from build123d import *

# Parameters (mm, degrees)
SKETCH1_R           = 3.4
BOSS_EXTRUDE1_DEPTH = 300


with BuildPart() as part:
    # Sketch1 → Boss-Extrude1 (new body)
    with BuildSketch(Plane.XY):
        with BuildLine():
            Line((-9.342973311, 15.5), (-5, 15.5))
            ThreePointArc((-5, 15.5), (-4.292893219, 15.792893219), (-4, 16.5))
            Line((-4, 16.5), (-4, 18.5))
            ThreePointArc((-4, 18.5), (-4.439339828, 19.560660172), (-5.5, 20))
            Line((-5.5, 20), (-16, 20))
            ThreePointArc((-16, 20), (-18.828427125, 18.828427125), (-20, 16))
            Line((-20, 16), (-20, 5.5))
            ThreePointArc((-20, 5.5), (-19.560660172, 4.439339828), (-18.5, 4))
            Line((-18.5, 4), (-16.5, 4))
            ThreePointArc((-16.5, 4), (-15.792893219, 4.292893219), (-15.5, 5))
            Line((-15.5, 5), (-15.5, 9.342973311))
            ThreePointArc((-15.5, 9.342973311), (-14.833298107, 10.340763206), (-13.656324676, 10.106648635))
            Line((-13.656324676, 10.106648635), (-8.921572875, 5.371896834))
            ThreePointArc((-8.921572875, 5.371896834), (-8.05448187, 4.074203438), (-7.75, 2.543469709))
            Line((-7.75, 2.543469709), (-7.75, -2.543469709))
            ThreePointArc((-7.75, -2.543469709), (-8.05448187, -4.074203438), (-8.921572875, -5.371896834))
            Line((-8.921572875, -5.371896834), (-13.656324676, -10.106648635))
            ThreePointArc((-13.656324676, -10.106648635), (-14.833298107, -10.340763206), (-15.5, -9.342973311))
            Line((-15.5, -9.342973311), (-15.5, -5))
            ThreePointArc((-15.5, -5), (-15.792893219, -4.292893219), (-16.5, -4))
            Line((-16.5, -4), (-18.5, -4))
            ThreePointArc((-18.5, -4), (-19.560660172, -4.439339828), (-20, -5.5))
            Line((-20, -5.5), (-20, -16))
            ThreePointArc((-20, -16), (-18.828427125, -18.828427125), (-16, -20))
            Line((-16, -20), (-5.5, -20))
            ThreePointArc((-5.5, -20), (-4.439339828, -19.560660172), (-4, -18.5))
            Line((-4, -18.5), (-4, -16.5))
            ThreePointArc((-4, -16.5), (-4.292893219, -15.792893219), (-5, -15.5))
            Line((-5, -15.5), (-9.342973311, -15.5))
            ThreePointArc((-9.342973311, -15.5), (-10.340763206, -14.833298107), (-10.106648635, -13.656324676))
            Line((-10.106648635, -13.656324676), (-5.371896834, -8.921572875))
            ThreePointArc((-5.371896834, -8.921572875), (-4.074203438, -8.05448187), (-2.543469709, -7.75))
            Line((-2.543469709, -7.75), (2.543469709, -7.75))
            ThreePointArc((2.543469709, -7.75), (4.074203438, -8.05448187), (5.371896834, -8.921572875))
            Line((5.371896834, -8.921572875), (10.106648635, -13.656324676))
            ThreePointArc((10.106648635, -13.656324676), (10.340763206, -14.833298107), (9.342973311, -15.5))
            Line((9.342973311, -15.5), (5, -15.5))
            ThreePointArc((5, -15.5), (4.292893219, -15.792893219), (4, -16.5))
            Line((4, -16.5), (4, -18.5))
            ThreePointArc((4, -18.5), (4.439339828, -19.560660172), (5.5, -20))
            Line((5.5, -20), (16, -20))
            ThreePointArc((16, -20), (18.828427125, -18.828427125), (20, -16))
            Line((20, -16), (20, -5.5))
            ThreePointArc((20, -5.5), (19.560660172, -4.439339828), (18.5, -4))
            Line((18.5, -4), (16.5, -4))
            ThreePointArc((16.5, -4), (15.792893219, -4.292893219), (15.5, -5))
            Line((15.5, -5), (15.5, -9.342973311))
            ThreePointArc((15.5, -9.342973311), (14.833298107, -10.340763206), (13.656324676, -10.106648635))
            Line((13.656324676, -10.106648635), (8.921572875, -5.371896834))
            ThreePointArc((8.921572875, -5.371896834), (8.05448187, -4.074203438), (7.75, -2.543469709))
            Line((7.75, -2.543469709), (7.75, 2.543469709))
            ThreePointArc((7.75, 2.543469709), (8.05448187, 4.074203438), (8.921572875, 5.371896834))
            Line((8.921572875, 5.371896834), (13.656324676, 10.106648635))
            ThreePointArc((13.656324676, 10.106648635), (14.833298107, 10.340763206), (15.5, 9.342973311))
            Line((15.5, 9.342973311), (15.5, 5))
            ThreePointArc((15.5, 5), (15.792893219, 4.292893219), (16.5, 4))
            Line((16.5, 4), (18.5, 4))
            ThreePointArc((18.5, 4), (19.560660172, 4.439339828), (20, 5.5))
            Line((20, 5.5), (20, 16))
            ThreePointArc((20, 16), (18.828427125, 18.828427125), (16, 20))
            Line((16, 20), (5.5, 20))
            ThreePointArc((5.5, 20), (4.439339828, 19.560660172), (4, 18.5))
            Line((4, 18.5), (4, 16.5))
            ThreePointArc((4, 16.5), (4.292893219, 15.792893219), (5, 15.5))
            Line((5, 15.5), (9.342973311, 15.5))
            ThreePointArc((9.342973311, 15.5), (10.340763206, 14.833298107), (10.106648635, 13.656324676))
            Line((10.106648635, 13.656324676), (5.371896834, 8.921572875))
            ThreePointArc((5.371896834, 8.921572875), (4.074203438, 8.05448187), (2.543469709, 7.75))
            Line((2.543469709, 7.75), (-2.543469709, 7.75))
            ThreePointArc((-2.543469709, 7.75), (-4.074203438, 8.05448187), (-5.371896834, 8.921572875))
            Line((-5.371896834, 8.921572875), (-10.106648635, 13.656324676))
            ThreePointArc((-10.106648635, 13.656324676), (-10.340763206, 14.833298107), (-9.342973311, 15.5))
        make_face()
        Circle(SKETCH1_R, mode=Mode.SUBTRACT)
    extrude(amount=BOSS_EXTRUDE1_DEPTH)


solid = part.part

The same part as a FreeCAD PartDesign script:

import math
import FreeCAD as App
import Part
import Sketcher
from FreeCAD import Vector
Q = App.Units.Quantity

doc = App.newDocument("Part")
body = doc.addObject("PartDesign::Body", "Body")

# Sketch on XY plane
sketch1 = doc.addObject("Sketcher::SketchObject", "Sketch")
body.addObject(sketch1)
sketch1.AttachmentSupport = (doc.XY_Plane, [""])
sketch1.MapMode = "FlatFace"
sketch1.addGeometry([
    Part.LineSegment(Vector(-9.3, 15.5, 0), Vector(-5, 15.5, 0)),  # 0
    Part.ArcOfCircle(Part.Circle(Vector(-5, 16.5, 0), Vector(0, 0, 1), 1), math.radians(-90), math.radians(0)),  # 1
    Part.LineSegment(Vector(-4, 16.5, 0), Vector(-4, 18.5, 0)),  # 2
    Part.ArcOfCircle(Part.Circle(Vector(-5.5, 18.5, 0), Vector(0, 0, 1), 1.5), math.radians(0), math.radians(90)),  # 3
    Part.LineSegment(Vector(-5.5, 20, 0), Vector(-16, 20, 0)),  # 4
    Part.ArcOfCircle(Part.Circle(Vector(-16, 16, 0), Vector(0, 0, 1), 4), math.radians(90), math.radians(180)),  # 5
    Part.LineSegment(Vector(-20, 16, 0), Vector(-20, 5.5, 0)),  # 6
    Part.ArcOfCircle(Part.Circle(Vector(-18.5, 5.5, 0), Vector(0, 0, 1), 1.5), math.radians(180), math.radians(270)),  # 7
    Part.LineSegment(Vector(-18.5, 4, 0), Vector(-16.5, 4, 0)),  # 8
    Part.ArcOfCircle(Part.Circle(Vector(-16.5, 5, 0), Vector(0, 0, 1), 1), math.radians(-90), math.radians(0)),  # 9
    Part.LineSegment(Vector(-15.5, 5, 0), Vector(-15.5, 9.3, 0)),  # 10
    Part.ArcOfCircle(Part.Circle(Vector(-14.4, 9.3, 0), Vector(0, 0, 1), 1.1), math.radians(45), math.radians(180)),  # 11
    Part.LineSegment(Vector(-13.7, 10.1, 0), Vector(-8.9, 5.4, 0)),  # 12
    Part.ArcOfCircle(Part.Circle(Vector(-11.8, 2.5, 0), Vector(0, 0, 1), 4), math.radians(0), math.radians(45)),  # 13
    Part.LineSegment(Vector(-7.8, 2.5, 0), Vector(-7.8, -2.5, 0)),  # 14
    Part.ArcOfCircle(Part.Circle(Vector(-11.8, -2.5, 0), Vector(0, 0, 1), 4), math.radians(-45), math.radians(0)),  # 15
    Part.LineSegment(Vector(-8.9, -5.4, 0), Vector(-13.7, -10.1, 0)),  # 16
    Part.ArcOfCircle(Part.Circle(Vector(-14.4, -9.3, 0), Vector(0, 0, 1), 1.1), math.radians(180), math.radians(315)),  # 17
    Part.LineSegment(Vector(-15.5, -9.3, 0), Vector(-15.5, -5, 0)),  # 18
    Part.ArcOfCircle(Part.Circle(Vector(-16.5, -5, 0), Vector(0, 0, 1), 1), math.radians(0), math.radians(90)),  # 19
    Part.LineSegment(Vector(-16.5, -4, 0), Vector(-18.5, -4, 0)),  # 20
    Part.ArcOfCircle(Part.Circle(Vector(-18.5, -5.5, 0), Vector(0, 0, 1), 1.5), math.radians(90), math.radians(180)),  # 21
    Part.LineSegment(Vector(-20, -5.5, 0), Vector(-20, -16, 0)),  # 22
    Part.ArcOfCircle(Part.Circle(Vector(-16, -16, 0), Vector(0, 0, 1), 4), math.radians(180), math.radians(270)),  # 23
    Part.LineSegment(Vector(-16, -20, 0), Vector(-5.5, -20, 0)),  # 24
    Part.ArcOfCircle(Part.Circle(Vector(-5.5, -18.5, 0), Vector(0, 0, 1), 1.5), math.radians(-90), math.radians(0)),  # 25
    Part.LineSegment(Vector(-4, -18.5, 0), Vector(-4, -16.5, 0)),  # 26
    Part.ArcOfCircle(Part.Circle(Vector(-5, -16.5, 0), Vector(0, 0, 1), 1), math.radians(0), math.radians(90)),  # 27
    Part.LineSegment(Vector(-5, -15.5, 0), Vector(-9.3, -15.5, 0)),  # 28
    Part.ArcOfCircle(Part.Circle(Vector(-9.3, -14.4, 0), Vector(0, 0, 1), 1.1), math.radians(135), math.radians(270)),  # 29
    Part.LineSegment(Vector(-10.1, -13.7, 0), Vector(-5.4, -8.9, 0)),  # 30
    Part.ArcOfCircle(Part.Circle(Vector(-2.5, -11.8, 0), Vector(0, 0, 1), 4), math.radians(90), math.radians(135)),  # 31
    Part.LineSegment(Vector(-2.5, -7.8, 0), Vector(2.5, -7.8, 0)),  # 32
    Part.ArcOfCircle(Part.Circle(Vector(2.5, -11.8, 0), Vector(0, 0, 1), 4), math.radians(45), math.radians(90)),  # 33
    Part.LineSegment(Vector(5.4, -8.9, 0), Vector(10.1, -13.7, 0)),  # 34
    Part.ArcOfCircle(Part.Circle(Vector(9.3, -14.4, 0), Vector(0, 0, 1), 1.1), math.radians(-90), math.radians(45)),  # 35
    Part.LineSegment(Vector(9.3, -15.5, 0), Vector(5, -15.5, 0)),  # 36
    Part.ArcOfCircle(Part.Circle(Vector(5, -16.5, 0), Vector(0, 0, 1), 1), math.radians(90), math.radians(180)),  # 37
    Part.LineSegment(Vector(4, -16.5, 0), Vector(4, -18.5, 0)),  # 38
    Part.ArcOfCircle(Part.Circle(Vector(5.5, -18.5, 0), Vector(0, 0, 1), 1.5), math.radians(180), math.radians(270)),  # 39
    Part.LineSegment(Vector(5.5, -20, 0), Vector(16, -20, 0)),  # 40
    Part.ArcOfCircle(Part.Circle(Vector(16, -16, 0), Vector(0, 0, 1), 4), math.radians(-90), math.radians(0)),  # 41
    Part.LineSegment(Vector(20, -16, 0), Vector(20, -5.5, 0)),  # 42
    Part.ArcOfCircle(Part.Circle(Vector(18.5, -5.5, 0), Vector(0, 0, 1), 1.5), math.radians(0), math.radians(90)),  # 43
    Part.LineSegment(Vector(18.5, -4, 0), Vector(16.5, -4, 0)),  # 44
    Part.ArcOfCircle(Part.Circle(Vector(16.5, -5, 0), Vector(0, 0, 1), 1), math.radians(90), math.radians(180)),  # 45
    Part.LineSegment(Vector(15.5, -5, 0), Vector(15.5, -9.3, 0)),  # 46
    Part.ArcOfCircle(Part.Circle(Vector(14.4, -9.3, 0), Vector(0, 0, 1), 1.1), math.radians(-135), math.radians(0)),  # 47
    Part.LineSegment(Vector(13.7, -10.1, 0), Vector(8.9, -5.4, 0)),  # 48
    Part.ArcOfCircle(Part.Circle(Vector(11.8, -2.5, 0), Vector(0, 0, 1), 4), math.radians(-180), math.radians(-135)),  # 49
    Part.LineSegment(Vector(7.8, -2.5, 0), Vector(7.8, 2.5, 0)),  # 50
    Part.ArcOfCircle(Part.Circle(Vector(11.8, 2.5, 0), Vector(0, 0, 1), 4), math.radians(135), math.radians(180)),  # 51
    Part.LineSegment(Vector(8.9, 5.4, 0), Vector(13.7, 10.1, 0)),  # 52
    Part.ArcOfCircle(Part.Circle(Vector(14.4, 9.3, 0), Vector(0, 0, 1), 1.1), math.radians(0), math.radians(135)),  # 53
    Part.LineSegment(Vector(15.5, 9.3, 0), Vector(15.5, 5, 0)),  # 54
    Part.ArcOfCircle(Part.Circle(Vector(16.5, 5, 0), Vector(0, 0, 1), 1), math.radians(-180), math.radians(-90)),  # 55
    Part.LineSegment(Vector(16.5, 4, 0), Vector(18.5, 4, 0)),  # 56
    Part.ArcOfCircle(Part.Circle(Vector(18.5, 5.5, 0), Vector(0, 0, 1), 1.5), math.radians(-90), math.radians(0)),  # 57
    Part.LineSegment(Vector(20, 5.5, 0), Vector(20, 16, 0)),  # 58
    Part.ArcOfCircle(Part.Circle(Vector(16, 16, 0), Vector(0, 0, 1), 4), math.radians(0), math.radians(90)),  # 59
    Part.LineSegment(Vector(16, 20, 0), Vector(5.5, 20, 0)),  # 60
    Part.ArcOfCircle(Part.Circle(Vector(5.5, 18.5, 0), Vector(0, 0, 1), 1.5), math.radians(90), math.radians(180)),  # 61
    Part.LineSegment(Vector(4, 18.5, 0), Vector(4, 16.5, 0)),  # 62
    Part.ArcOfCircle(Part.Circle(Vector(5, 16.5, 0), Vector(0, 0, 1), 1), math.radians(-180), math.radians(-90)),  # 63
    Part.LineSegment(Vector(5, 15.5, 0), Vector(9.3, 15.5, 0)),  # 64
    Part.ArcOfCircle(Part.Circle(Vector(9.3, 14.4, 0), Vector(0, 0, 1), 1.1), math.radians(-45), math.radians(90)),  # 65
    Part.LineSegment(Vector(10.1, 13.7, 0), Vector(5.4, 8.9, 0)),  # 66
    Part.ArcOfCircle(Part.Circle(Vector(2.5, 11.8, 0), Vector(0, 0, 1), 4), math.radians(-90), math.radians(-45)),  # 67
    Part.LineSegment(Vector(2.5, 7.8, 0), Vector(-2.5, 7.8, 0)),  # 68
    Part.ArcOfCircle(Part.Circle(Vector(-2.5, 11.8, 0), Vector(0, 0, 1), 4), math.radians(-135), math.radians(-90)),  # 69
    Part.LineSegment(Vector(-5.4, 8.9, 0), Vector(-10.1, 13.7, 0)),  # 70
    Part.ArcOfCircle(Part.Circle(Vector(-9.3, 14.4, 0), Vector(0, 0, 1), 1.1), math.radians(90), math.radians(225)),  # 71
    Part.Circle(Vector(0, 0, 0), Vector(0, 0, 1), 3.4),  # 72
], False)
sketch1.addConstraint([
    Sketcher.Constraint("Tangent", 0, 2, 1, 1),
    Sketcher.Constraint("Tangent", 1, 2, 2, 1),
    Sketcher.Constraint("Tangent", 2, 2, 3, 1),
    Sketcher.Constraint("Tangent", 3, 2, 4, 1),
    Sketcher.Constraint("Tangent", 4, 2, 5, 1),
    Sketcher.Constraint("Tangent", 5, 2, 6, 1),
    Sketcher.Constraint("Tangent", 6, 2, 7, 1),
    Sketcher.Constraint("Tangent", 7, 2, 8, 1),
    Sketcher.Constraint("Tangent", 8, 2, 9, 1),
    Sketcher.Constraint("Tangent", 9, 2, 10, 1),
    Sketcher.Constraint("Tangent", 10, 2, 11, 2),
    Sketcher.Constraint("Tangent", 11, 1, 12, 1),
    Sketcher.Constraint("Tangent", 12, 2, 13, 2),
    Sketcher.Constraint("Tangent", 13, 1, 14, 1),
    Sketcher.Constraint("Tangent", 14, 2, 15, 2),
    Sketcher.Constraint("Tangent", 15, 1, 16, 1),
    Sketcher.Constraint("Tangent", 16, 2, 17, 2),
    Sketcher.Constraint("Tangent", 17, 1, 18, 1),
    Sketcher.Constraint("Tangent", 18, 2, 19, 1),
    Sketcher.Constraint("Tangent", 19, 2, 20, 1),
    Sketcher.Constraint("Tangent", 20, 2, 21, 1),
    Sketcher.Constraint("Tangent", 21, 2, 22, 1),
    Sketcher.Constraint("Tangent", 22, 2, 23, 1),
    Sketcher.Constraint("Tangent", 23, 2, 24, 1),
    Sketcher.Constraint("Tangent", 24, 2, 25, 1),
    Sketcher.Constraint("Tangent", 25, 2, 26, 1),
    Sketcher.Constraint("Tangent", 26, 2, 27, 1),
    Sketcher.Constraint("Tangent", 27, 2, 28, 1),
    Sketcher.Constraint("Tangent", 28, 2, 29, 2),
    Sketcher.Constraint("Tangent", 29, 1, 30, 1),
    Sketcher.Constraint("Tangent", 30, 2, 31, 2),
    Sketcher.Constraint("Tangent", 31, 1, 32, 1),
    Sketcher.Constraint("Tangent", 32, 2, 33, 2),
    Sketcher.Constraint("Tangent", 33, 1, 34, 1),
    Sketcher.Constraint("Tangent", 34, 2, 35, 2),
    Sketcher.Constraint("Tangent", 35, 1, 36, 1),
    Sketcher.Constraint("Tangent", 36, 2, 37, 1),
    Sketcher.Constraint("Tangent", 37, 2, 38, 1),
    Sketcher.Constraint("Tangent", 38, 2, 39, 1),
    Sketcher.Constraint("Tangent", 39, 2, 40, 1),
    Sketcher.Constraint("Tangent", 40, 2, 41, 1),
    Sketcher.Constraint("Tangent", 41, 2, 42, 1),
    Sketcher.Constraint("Tangent", 42, 2, 43, 1),
    Sketcher.Constraint("Tangent", 43, 2, 44, 1),
    Sketcher.Constraint("Tangent", 44, 2, 45, 1),
    Sketcher.Constraint("Tangent", 45, 2, 46, 1),
    Sketcher.Constraint("Tangent", 46, 2, 47, 2),
    Sketcher.Constraint("Tangent", 47, 1, 48, 1),
    Sketcher.Constraint("Tangent", 48, 2, 49, 2),
    Sketcher.Constraint("Tangent", 49, 1, 50, 1),
    Sketcher.Constraint("Tangent", 50, 2, 51, 2),
    Sketcher.Constraint("Tangent", 51, 1, 52, 1),
    Sketcher.Constraint("Tangent", 52, 2, 53, 2),
    Sketcher.Constraint("Tangent", 53, 1, 54, 1),
    Sketcher.Constraint("Tangent", 54, 2, 55, 1),
    Sketcher.Constraint("Tangent", 55, 2, 56, 1),
    Sketcher.Constraint("Tangent", 56, 2, 57, 1),
    Sketcher.Constraint("Tangent", 57, 2, 58, 1),
    Sketcher.Constraint("Tangent", 58, 2, 59, 1),
    Sketcher.Constraint("Tangent", 59, 2, 60, 1),
    Sketcher.Constraint("Tangent", 60, 2, 61, 1),
    Sketcher.Constraint("Tangent", 61, 2, 62, 1),
    Sketcher.Constraint("Tangent", 62, 2, 63, 1),
    Sketcher.Constraint("Tangent", 63, 2, 64, 1),
    Sketcher.Constraint("Tangent", 64, 2, 65, 2),
    Sketcher.Constraint("Tangent", 65, 1, 66, 1),
    Sketcher.Constraint("Tangent", 66, 2, 67, 2),
    Sketcher.Constraint("Tangent", 67, 1, 68, 1),
    Sketcher.Constraint("Tangent", 68, 2, 69, 2),
    Sketcher.Constraint("Tangent", 69, 1, 70, 1),
    Sketcher.Constraint("Tangent", 70, 2, 71, 2),
    Sketcher.Constraint("Tangent", 71, 1, 0, 1),
    Sketcher.Constraint("Horizontal", 0),
    Sketcher.Constraint("Vertical", 2),
    Sketcher.Constraint("Horizontal", 4),
    Sketcher.Constraint("Vertical", 6),
    Sketcher.Constraint("Horizontal", 8),
    Sketcher.Constraint("Vertical", 10),
    Sketcher.Constraint("Vertical", 14),
    Sketcher.Constraint("Vertical", 18),
    Sketcher.Constraint("Horizontal", 20),
    Sketcher.Constraint("Vertical", 22),
    Sketcher.Constraint("Horizontal", 24),
    Sketcher.Constraint("Vertical", 26),
    Sketcher.Constraint("Horizontal", 28),
    Sketcher.Constraint("Horizontal", 32),
    Sketcher.Constraint("Horizontal", 36),
    Sketcher.Constraint("Vertical", 38),
    Sketcher.Constraint("Horizontal", 40),
    Sketcher.Constraint("Vertical", 42),
    Sketcher.Constraint("Horizontal", 44),
    Sketcher.Constraint("Vertical", 46),
    Sketcher.Constraint("Vertical", 50),
    Sketcher.Constraint("Vertical", 54),
    Sketcher.Constraint("Horizontal", 56),
    Sketcher.Constraint("Vertical", 58),
    Sketcher.Constraint("Horizontal", 60),
    Sketcher.Constraint("Vertical", 62),
    Sketcher.Constraint("Horizontal", 64),
    Sketcher.Constraint("Horizontal", 68),
    Sketcher.Constraint("Coincident", 72, 3, -1, 1),
    Sketcher.Constraint("Equal", 3, 7),
    Sketcher.Constraint("Equal", 1, 9),
    Sketcher.Constraint("Equal", 5, 13),
    Sketcher.Constraint("Equal", 13, 15),
    Sketcher.Constraint("Equal", 11, 17),
    Sketcher.Constraint("Equal", 9, 19),
    Sketcher.Constraint("Equal", 7, 21),
    Sketcher.Constraint("Equal", 15, 23),
    Sketcher.Constraint("Equal", 21, 25),
    Sketcher.Constraint("Equal", 19, 27),
    Sketcher.Constraint("Equal", 17, 29),
    Sketcher.Constraint("Equal", 23, 31),
    Sketcher.Constraint("Equal", 31, 33),
    Sketcher.Constraint("Equal", 29, 35),
    Sketcher.Constraint("Equal", 27, 37),
    Sketcher.Constraint("Equal", 25, 39),
    Sketcher.Constraint("Equal", 33, 41),
    Sketcher.Constraint("Equal", 39, 43),
    Sketcher.Constraint("Equal", 37, 45),
    Sketcher.Constraint("Equal", 35, 47),
    Sketcher.Constraint("Equal", 41, 49),
    Sketcher.Constraint("Equal", 49, 51),
    Sketcher.Constraint("Equal", 47, 53),
    Sketcher.Constraint("Equal", 45, 55),
    Sketcher.Constraint("Equal", 43, 57),
    Sketcher.Constraint("Equal", 51, 59),
    Sketcher.Constraint("Equal", 57, 61),
    Sketcher.Constraint("Equal", 55, 63),
    Sketcher.Constraint("Equal", 53, 65),
    Sketcher.Constraint("Equal", 59, 67),
    Sketcher.Constraint("Equal", 67, 69),
    Sketcher.Constraint("Equal", 65, 71),
    Sketcher.Constraint("Symmetric", 1, 3, 37, 3, -1, 1),
    Sketcher.Constraint("Symmetric", 5, 3, 41, 3, -1, 1),
    Sketcher.Constraint("Symmetric", 9, 3, 45, 3, -1, 1),
    Sketcher.Constraint("Symmetric", 13, 3, 49, 3, -1, 1),
    Sketcher.Constraint("Symmetric", 17, 3, 53, 3, -1, 1),
    Sketcher.Constraint("Symmetric", 21, 3, 57, 3, -1, 1),
    Sketcher.Constraint("Symmetric", 25, 3, 61, 3, -1, 1),
    Sketcher.Constraint("Symmetric", 29, 3, 65, 3, -1, 1),
    Sketcher.Constraint("Symmetric", 31, 3, 67, 3, -1, 1),
    Sketcher.Constraint("Symmetric", 33, 1, 69, 1, -1, 1),
    Sketcher.Constraint("Symmetric", 29, 3, 35, 3, -2),
    Sketcher.Constraint("Symmetric", 25, 3, 39, 3, -2),
    Sketcher.Constraint("Symmetric", 21, 3, 43, 3, -2),
    Sketcher.Constraint("Symmetric", 17, 3, 47, 3, -2),
    Sketcher.Constraint("Symmetric", 12, 2, 51, 1, -2),
    Sketcher.Constraint("Perpendicular", 12, 16),
    Sketcher.Constraint("Parallel", 16, 30),
    Sketcher.Constraint("Perpendicular", 30, 34),
    Sketcher.Constraint("Perpendicular", 48, 52),
    Sketcher.Constraint("Equal", 56, 2),
    Sketcher.Constraint("Equal", 60, 6),
    Sketcher.Constraint("Equal", 64, 10),
    Sketcher.Constraint("Equal", 68, 14),
    Sketcher.Constraint("Equal", 16, 30),
    Sketcher.Constraint("Radius", 1, Q("1 mm")),
    Sketcher.Constraint("Radius", 5, Q("4 mm")),
    Sketcher.Constraint("Diameter", 72, Q("6.8 mm")),
    Sketcher.Constraint("Radius", 3, Q("1.5 mm")),
    Sketcher.Constraint("DistanceX", 8, 1, 8, 2, Q("2 mm")),
    Sketcher.Constraint("Radius", 11, Q("1.08 mm")),
    Sketcher.Constraint("DistanceX", 4, 2, 4, 1, Q("10.5 mm")),
    Sketcher.Constraint("DistanceX", 1, 3, -1, 1, Q("5 mm")),
    Sketcher.Constraint("DistanceX", 13, 3, -1, 1, Q("11.75 mm")),
    Sketcher.Constraint("DistanceX", 32, 1, 32, 2, Q("5.086939 mm")),
])
pad1 = doc.addObject("PartDesign::Pad", "Pad")
body.addObject(pad1)
pad1.Profile = sketch1
pad1.Length = 300

doc.recompute()
